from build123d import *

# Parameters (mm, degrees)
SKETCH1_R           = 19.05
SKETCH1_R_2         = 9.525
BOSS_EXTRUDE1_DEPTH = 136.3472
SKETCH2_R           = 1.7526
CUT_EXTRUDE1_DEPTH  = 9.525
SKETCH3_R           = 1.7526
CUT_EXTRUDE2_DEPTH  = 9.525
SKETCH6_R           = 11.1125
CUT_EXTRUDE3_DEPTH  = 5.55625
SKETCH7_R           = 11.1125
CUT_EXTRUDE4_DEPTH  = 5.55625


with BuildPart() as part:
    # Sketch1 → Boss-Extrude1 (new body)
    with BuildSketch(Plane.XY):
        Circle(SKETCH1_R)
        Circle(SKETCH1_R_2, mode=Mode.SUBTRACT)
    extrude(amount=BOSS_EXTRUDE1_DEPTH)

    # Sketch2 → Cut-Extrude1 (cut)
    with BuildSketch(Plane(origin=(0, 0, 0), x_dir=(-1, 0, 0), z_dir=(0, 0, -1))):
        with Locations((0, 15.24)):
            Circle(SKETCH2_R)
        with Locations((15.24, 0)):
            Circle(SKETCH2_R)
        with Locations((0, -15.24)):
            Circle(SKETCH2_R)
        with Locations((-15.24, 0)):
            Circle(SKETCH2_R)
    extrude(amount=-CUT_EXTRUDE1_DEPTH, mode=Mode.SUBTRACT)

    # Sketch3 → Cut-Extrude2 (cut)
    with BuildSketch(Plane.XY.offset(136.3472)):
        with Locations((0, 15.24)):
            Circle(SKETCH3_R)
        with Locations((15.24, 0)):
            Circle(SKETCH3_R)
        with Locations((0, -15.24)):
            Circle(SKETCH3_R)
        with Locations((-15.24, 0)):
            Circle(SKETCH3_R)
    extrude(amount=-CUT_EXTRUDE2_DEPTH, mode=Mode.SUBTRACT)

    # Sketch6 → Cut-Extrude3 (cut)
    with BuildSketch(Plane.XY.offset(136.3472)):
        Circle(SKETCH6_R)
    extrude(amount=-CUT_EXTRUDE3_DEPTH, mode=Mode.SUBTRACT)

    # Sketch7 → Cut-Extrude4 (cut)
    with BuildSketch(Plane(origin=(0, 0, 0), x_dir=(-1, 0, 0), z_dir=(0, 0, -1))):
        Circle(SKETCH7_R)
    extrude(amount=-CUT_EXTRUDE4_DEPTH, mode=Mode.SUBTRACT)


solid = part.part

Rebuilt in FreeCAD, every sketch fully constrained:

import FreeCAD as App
import Part
import Sketcher

V = App.Vector
Q = App.Units.Quantity

doc = App.newDocument("Part")
params = doc.addObject("Spreadsheet::Sheet", "Params")
for row, (alias, value) in enumerate([
    ("sketch1_diameter", "1.5 in"),
    ("sketch1_diameter2", "0.75 in"),
    ("pad1_length", "5.368 in"),
    ("sketch2_diameter", "0.138 in"),
    ("pocket1_length", "0.375 in"),
    ("sketch3_diameter", "0.138 in"),
    ("pocket2_length", "0.375 in"),
    ("sketch4_diameter", "0.875 in"),
    ("pocket3_length", "0.21875 in"),
    ("sketch5_diameter", "0.875 in"),
    ("pocket4_length", "0.21875 in"),
], start=1):
    params.set(f"A{row}", alias)
    params.set(f"B{row}", "=" + value)
    params.setAlias(f"B{row}", alias)

body = doc.addObject("PartDesign::Body", "Body")

# Sketch on XY plane
sketch1 = doc.addObject("Sketcher::SketchObject", "Sketch")
body.addObject(sketch1)
sketch1.AttachmentSupport = (doc.XY_Plane, [""])
sketch1.MapMode = "FlatFace"
sketch1.addGeometry(Part.Circle(V(0, 0, 0), V(0, 0, 1), 19.05), False)
sketch1.addGeometry(Part.Circle(V(0, 0, 0), V(0, 0, 1), 9.525), False)
sketch1.addConstraint(Sketcher.Constraint("Coincident", 0, 3, -1, 1))
sketch1.addConstraint(Sketcher.Constraint("Coincident", 1, 3, -1, 1))
sketch1.addConstraint(Sketcher.Constraint("Diameter", 0, Q("1.5 in")))
sketch1.addConstraint(Sketcher.Constraint("Diameter", 1, Q("0.75 in")))
sketch1.setExpression("Constraints[2]", "Params.sketch1_diameter")
sketch1.setExpression("Constraints[3]", "Params.sketch1_diameter2")
pad1 = doc.addObject("PartDesign::Pad", "Pad")
body.addObject(pad1)
pad1.Profile = sketch1
pad1.setExpression("Length", "Params.pad1_length")

# Sketch on XY plane
sketch2 = doc.addObject("Sketcher::SketchObject", "Sketch001")
body.addObject(sketch2)
sketch2.AttachmentSupport = (doc.XY_Plane, [""])
sketch2.MapMode = "FlatFace"
sketch2.addGeometry(Part.Circle(V(0, 15.24, 0), V(0, 0, 1), 1.7526), False)
sketch2.addGeometry(Part.Circle(V(-15.24, 0, 0), V(0, 0, 1), 1.7526), False)
sketch2.addGeometry(Part.Circle(V(0, -15.24, 0), V(0, 0, 1), 1.7526), False)
sketch2.addGeometry(Part.Circle(V(15.24, 0, 0), V(0, 0, 1), 1.7526), False)
sketch2.addConstraint(Sketcher.Constraint("Equal", 0, 1))
sketch2.addConstraint(Sketcher.Constraint("Equal", 1, 2))
sketch2.addConstraint(Sketcher.Constraint("Equal", 2, 3))
sketch2.addConstraint(Sketcher.Constraint("Symmetric", 0, 3, 2, 3, -1, 1))
sketch2.addConstraint(Sketcher.Constraint("Symmetric", 1, 3, 3, 3, -1, 1))
sketch2.addConstraint(Sketcher.Constraint("PointOnObject", 0, 3, -2))
sketch2.addConstraint(Sketcher.Constraint("PointOnObject", 1, 3, -1))
sketch2.addConstraint(Sketcher.Constraint("Diameter", 0, Q("0.138 in")))
sketch2.addConstraint(Sketcher.Constraint("DistanceY", -1, 1, 0, 3, Q("0.6 in")))
sketch2.addConstraint(Sketcher.Constraint("DistanceX", 1, 3, -1, 1, Q("0.6 in")))
sketch2.setExpression("Constraints[7]", "Params.sketch2_diameter")
pocket1 = doc.addObject("PartDesign::Pocket", "Pocket")
body.addObject(pocket1)
pocket1.Profile = sketch2
pocket1.setExpression("Length", "Params.pocket1_length")
pocket1.Reversed = True

# Sketch on XY plane
sketch3 = doc.addObject("Sketcher::SketchObject", "Sketch002")
body.addObject(sketch3)
sketch3.AttachmentSupport = (doc.XY_Plane, [""])
sketch3.MapMode = "FlatFace"
sketch3.AttachmentOffset = App.Placement(V(0, 0, 5.368 * 25.4), App.Rotation())
sketch3.addGeometry(Part.Circle(V(0, 15.24, 0), V(0, 0, 1), 1.7526), False)
sketch3.addGeometry(Part.Circle(V(15.24, 0, 0), V(0, 0, 1), 1.7526), False)
sketch3.addGeometry(Part.Circle(V(0, -15.24, 0), V(0, 0, 1), 1.7526), False)
sketch3.addGeometry(Part.Circle(V(-15.24, 0, 0), V(0, 0, 1), 1.7526), False)
sketch3.addConstraint(Sketcher.Constraint("Equal", 0, 1))
sketch3.addConstraint(Sketcher.Constraint("Equal", 1, 2))
sketch3.addConstraint(Sketcher.Constraint("Equal", 2, 3))
sketch3.addConstraint(Sketcher.Constraint("Symmetric", 0, 3, 2, 3, -1, 1))
sketch3.addConstraint(Sketcher.Constraint("Symmetric", 1, 3, 3, 3, -1, 1))
sketch3.addConstraint(Sketcher.Constraint("PointOnObject", 0, 3, -2))
sketch3.addConstraint(Sketcher.Constraint("PointOnObject", 1, 3, -1))
sketch3.addConstraint(Sketcher.Constraint("Diameter", 0, Q("0.138 in")))
sketch3.addConstraint(Sketcher.Constraint("DistanceY", -1, 1, 0, 3, Q("0.6 in")))
sketch3.addConstraint(Sketcher.Constraint("DistanceX", -1, 1, 1, 3, Q("0.6 in")))
sketch3.setExpression("Constraints[7]", "Params.sketch3_diameter")
pocket2 = doc.addObject("PartDesign::Pocket", "Pocket001")
body.addObject(pocket2)
pocket2.Profile = sketch3
pocket2.setExpression("Length", "Params.pocket2_length")

# Sketch on XY plane
sketch4 = doc.addObject("Sketcher::SketchObject", "Sketch003")
body.addObject(sketch4)
sketch4.AttachmentSupport = (doc.XY_Plane, [""])
sketch4.MapMode = "FlatFace"
sketch4.AttachmentOffset = App.Placement(V(0, 0, 5.368 * 25.4), App.Rotation())
sketch4.addGeometry(Part.Circle(V(0, 0, 0), V(0, 0, 1), 11.1125), False)
sketch4.addConstraint(Sketcher.Constraint("Coincident", 0, 3, -1, 1))
sketch4.addConstraint(Sketcher.Constraint("Diameter", 0, Q("0.875 in")))
sketch4.setExpression("Constraints[1]", "Params.sketch4_diameter")
pocket3 = doc.addObject("PartDesign::Pocket", "Pocket002")
body.addObject(pocket3)
pocket3.Profile = sketch4
pocket3.setExpression("Length", "Params.pocket3_length")

# Sketch on XY plane
sketch5 = doc.addObject("Sketcher::SketchObject", "Sketch004")
body.addObject(sketch5)
sketch5.AttachmentSupport = (doc.XY_Plane, [""])
sketch5.MapMode = "FlatFace"
sketch5.addGeometry(Part.Circle(V(0, 0, 0), V(0, 0, 1), 11.1125), False)
sketch5.addConstraint(Sketcher.Constraint("Coincident", 0, 3, -1, 1))
sketch5.addConstraint(Sketcher.Constraint("Diameter", 0, Q("0.875 in")))
sketch5.setExpression("Constraints[1]", "Params.sketch5_diameter")
pocket4 = doc.addObject("PartDesign::Pocket", "Pocket003")
body.addObject(pocket4)
pocket4.Profile = sketch5
pocket4.setExpression("Length", "Params.pocket4_length")
pocket4.Reversed = True

doc.recompute()
